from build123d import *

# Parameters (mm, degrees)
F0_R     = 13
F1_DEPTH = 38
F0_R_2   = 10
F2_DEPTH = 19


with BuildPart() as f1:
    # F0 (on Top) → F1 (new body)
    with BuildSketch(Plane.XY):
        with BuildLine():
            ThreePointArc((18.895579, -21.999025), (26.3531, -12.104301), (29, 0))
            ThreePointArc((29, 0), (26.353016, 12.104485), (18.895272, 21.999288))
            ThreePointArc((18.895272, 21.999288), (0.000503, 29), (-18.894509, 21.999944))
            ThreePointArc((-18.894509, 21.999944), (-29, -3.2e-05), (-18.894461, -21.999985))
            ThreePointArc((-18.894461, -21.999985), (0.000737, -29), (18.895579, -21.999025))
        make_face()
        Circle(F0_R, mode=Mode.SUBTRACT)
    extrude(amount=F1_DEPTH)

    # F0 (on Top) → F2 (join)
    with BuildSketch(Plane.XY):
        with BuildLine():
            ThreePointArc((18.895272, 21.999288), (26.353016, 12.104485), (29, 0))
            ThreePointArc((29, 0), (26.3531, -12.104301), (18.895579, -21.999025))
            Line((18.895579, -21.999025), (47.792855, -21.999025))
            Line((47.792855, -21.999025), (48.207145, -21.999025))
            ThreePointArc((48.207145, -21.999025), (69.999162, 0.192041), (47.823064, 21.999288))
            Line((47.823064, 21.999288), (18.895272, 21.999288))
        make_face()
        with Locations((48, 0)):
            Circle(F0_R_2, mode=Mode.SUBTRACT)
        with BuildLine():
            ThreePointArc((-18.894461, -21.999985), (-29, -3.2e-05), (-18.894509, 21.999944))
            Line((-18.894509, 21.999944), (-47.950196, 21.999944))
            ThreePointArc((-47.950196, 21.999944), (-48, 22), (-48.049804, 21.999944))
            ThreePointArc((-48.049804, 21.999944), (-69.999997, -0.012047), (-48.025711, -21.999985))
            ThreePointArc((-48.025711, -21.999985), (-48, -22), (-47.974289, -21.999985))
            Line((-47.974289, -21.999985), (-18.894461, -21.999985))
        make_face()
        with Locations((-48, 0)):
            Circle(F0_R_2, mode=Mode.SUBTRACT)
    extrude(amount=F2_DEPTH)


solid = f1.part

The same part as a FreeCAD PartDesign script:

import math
import FreeCAD as App
import Part
import Sketcher

V = App.Vector

doc = App.newDocument("Part")
params = doc.addObject("Spreadsheet::Sheet", "Params")
for row, (alias, value) in enumerate([
    ("sketch1_diameter", "26 mm"),
    ("sketch1_radius", "28.999999 mm"),
    ("pad1_length", "38 mm"),
    ("sketch2_diameter", "20 mm"),
    ("sketch2_diameter2", "20 mm"),
    ("sketch2_radius", "22 mm"),
    ("sketch2_radius2", "29 mm"),
    ("sketch2_radius3", "22 mm"),
    ("pad2_length", "19 mm"),
], start=1):
    params.set(f"A{row}", alias)
    params.set(f"B{row}", "=" + value)
    params.setAlias(f"B{row}", alias)

body = doc.addObject("PartDesign::Body", "Body")

sketch1 = body.newObject("Sketcher::SketchObject", "Sketch")
sketch1.AttachmentSupport = (doc.getObject("XY_Plane"), [""])
sketch1.MapMode = "FlatFace"
sketch1.addGeometry([
    Part.ArcOfCircle(Part.Circle(V(0, 0, 0), V(0, 0, 1), 29), math.radians(-49), math.radians(0)),
    Part.ArcOfCircle(Part.Circle(V(0, 0, 0), V(0, 0, 1), 29), math.radians(0), math.radians(49)),
    Part.ArcOfCircle(Part.Circle(V(0, 0, 0), V(0, 0, 1), 29), math.radians(49), math.radians(131)),
    Part.ArcOfCircle(Part.Circle(V(0, 0, 0), V(0, 0, 1), 29), math.radians(131), math.radians(229)),
    Part.ArcOfCircle(Part.Circle(V(0, 0, 0), V(0, 0, 1), 29), math.radians(-131), math.radians(-49)),
    Part.Circle(V(0, 0, 0), V(0, 0, 1), 13),
], False)
sketch1.addConstraint([
    Sketcher.Constraint("Tangent", 0, 2, 1, 1),
    Sketcher.Constraint("Tangent", 1, 2, 2, 1),
    Sketcher.Constraint("Tangent", 2, 2, 3, 1),
    Sketcher.Constraint("Tangent", 3, 2, 4, 1),
    Sketcher.Constraint("Tangent", 4, 2, 0, 1),
    Sketcher.Constraint("Coincident", 0, 3, -1, 1),
    Sketcher.Constraint("Coincident", 2, 3, -1, 1),
    Sketcher.Constraint("Coincident", 5, 3, -1, 1),
    Sketcher.Constraint("PointOnObject", 0, 2, -1),
    Sketcher.Constraint("Diameter", 5, 26.0),
    Sketcher.Constraint("Radius", 2, 28.999999),
    Sketcher.Constraint("DistanceX", -1, 1, 1, 2, 18.895272),
    Sketcher.Constraint("DistanceX", 2, 2, -1, 1, 18.894509),
    Sketcher.Constraint("DistanceX", 3, 2, -1, 1, 18.894461),
    Sketcher.Constraint("DistanceX", -1, 1, 4, 2, 18.895579),
])
sketch1.setExpression("Constraints[9]", "Params.sketch1_diameter")
sketch1.setExpression("Constraints[10]", "Params.sketch1_radius")
pad1 = body.newObject("PartDesign::Pad", "Pad")
pad1.Profile = sketch1
pad1.setExpression("Length", "Params.pad1_length")

sketch2 = body.newObject("Sketcher::SketchObject", "Sketch001")
sketch2.AttachmentSupport = (doc.getObject("XY_Plane"), [""])
sketch2.MapMode = "FlatFace"
sketch2.addGeometry([
    Part.ArcOfCircle(Part.Circle(V(0.000004, 0.000001, 0), V(0, 0, 1), 28.999996), math.radians(-0.000002), math.radians(49.340597)),
    Part.ArcOfCircle(Part.Circle(V(-0.000004, 0.000002, 0), V(0, 0, 1), 29.000004), math.radians(-49.339791), math.radians(-0.000003)),
    Part.LineSegment(V(18.895579, -21.999025, 0), V(48.207145, -21.999025, 0)),
    Part.ArcOfCircle(Part.Circle(V(48, 0, 0), V(0, 0, 1), 22), math.radians(-89.460514), math.radians(90.46081)),
    Part.LineSegment(V(47.823064, 21.999288, 0), V(18.895272, 21.999288, 0)),
    Part.Circle(V(48, 0, 0), V(0, 0, 1), 10),
    Part.ArcOfCircle(Part.Circle(V(0, 0, 0), V(0, 0, 1), 29), math.radians(130.657419), math.radians(229.342706)),
    Part.LineSegment(V(-18.894509, 21.999944, 0), V(-47.950196, 21.999944, 0)),
    Part.ArcOfCircle(Part.Circle(V(-48, -0.1468, 0), V(0, 0, 1), 22.1468), math.radians(89.871152), math.radians(90.128848)),
    Part.ArcOfCircle(Part.Circle(V(-48, 0, 0), V(0, 0, 1), 22), math.radians(90.129707), math.radians(269.93304)),
    Part.ArcOfCircle(Part.Circle(V(-48, 0.035192, 0), V(0, 0, 1), 22.035192), math.radians(-90.066854), math.radians(-89.933146)),
    Part.LineSegment(V(-47.974289, -21.999985, 0), V(-18.894461, -21.999985, 0)),
    Part.Circle(V(-48, 0, 0), V(0, 0, 1), 10),
], False)
sketch2.addConstraint([
    Sketcher.Constraint("Coincident", 0, 1, 1, 2),
    Sketcher.Constraint("Coincident", 1, 1, 2, 1),
    Sketcher.Constraint("Coincident", 2, 2, 3, 1),
    Sketcher.Constraint("Coincident", 3, 2, 4, 1),
    Sketcher.Constraint("Coincident", 4, 2, 0, 2),
    Sketcher.Constraint("Coincident", 6, 1, 7, 1),
    Sketcher.Constraint("Coincident", 7, 2, 8, 1),
    Sketcher.Constraint("Coincident", 8, 2, 9, 1),
    Sketcher.Constraint("Coincident", 9, 2, 10, 1),
    Sketcher.Constraint("Coincident", 10, 2, 11, 1),
    Sketcher.Constraint("Coincident", 11, 2, 6, 2),
    Sketcher.Constraint("Horizontal", 2),
    Sketcher.Constraint("Horizontal", 4),
    Sketcher.Constraint("Horizontal", 7),
    Sketcher.Constraint("Horizontal", 11),
    Sketcher.Constraint("Coincident", 0, 3, -1, 1),
    Sketcher.Constraint("Coincident", 1, 3, -1, 1),
    Sketcher.Constraint("Coincident", 6, 3, -1, 1),
    Sketcher.Constraint("Coincident", 5, 3, 3, 3),
    Sketcher.Constraint("Coincident", 12, 3, 9, 3),
    Sketcher.Constraint("PointOnObject", 3, 3, -1),
    Sketcher.Constraint("PointOnObject", 9, 3, -1),
    Sketcher.Constraint("PointOnObject", 0, 1, -1),
    Sketcher.Constraint("Diameter", 5, 20.0),
    Sketcher.Constraint("Diameter", 12, 20.0),
    Sketcher.Constraint("Radius", 3, 22.0),
    Sketcher.Constraint("Radius", 6, 29.0),
    Sketcher.Constraint("Radius", 9, 22.0),
    Sketcher.Constraint("DistanceX", -1, 1, 3, 3, 48.0),
    Sketcher.Constraint("DistanceX", 8, 3, -1, 1, 48.0),
    Sketcher.Constraint("DistanceX", 9, 3, -1, 1, 48.0),
    Sketcher.Constraint("DistanceX", 10, 3, -1, 1, 48.0),
    Sketcher.Constraint("DistanceX", -1, 1, 0, 1, 29.0),
    Sketcher.Constraint("Radius", 8, 22.1468),
    Sketcher.Constraint("Radius", 10, 22.035192),
    Sketcher.Constraint("DistanceX", 2, 1, 2, 2, 29.311566),
    Sketcher.Constraint("DistanceX", 4, 2, 4, 1, 28.927792),
    Sketcher.Constraint("DistanceX", 7, 2, 7, 1, 29.055687),
    Sketcher.Constraint("DistanceX", 11, 1, 11, 2, 29.079828),
    Sketcher.Constraint("DistanceX", 9, 2, -1, 1, 48.025711),
    Sketcher.Constraint("DistanceX", 8, 2, 7, 2, 0.099608),
])
sketch2.setExpression("Constraints[23]", "Params.sketch2_diameter")
sketch2.setExpression("Constraints[24]", "Params.sketch2_diameter2")
sketch2.setExpression("Constraints[25]", "Params.sketch2_radius")
sketch2.setExpression("Constraints[26]", "Params.sketch2_radius2")
sketch2.setExpression("Constraints[27]", "Params.sketch2_radius3")
pad2 = body.newObject("PartDesign::Pad", "Pad001")
pad2.Profile = sketch2
pad2.setExpression("Length", "Params.pad2_length")

doc.recompute()
